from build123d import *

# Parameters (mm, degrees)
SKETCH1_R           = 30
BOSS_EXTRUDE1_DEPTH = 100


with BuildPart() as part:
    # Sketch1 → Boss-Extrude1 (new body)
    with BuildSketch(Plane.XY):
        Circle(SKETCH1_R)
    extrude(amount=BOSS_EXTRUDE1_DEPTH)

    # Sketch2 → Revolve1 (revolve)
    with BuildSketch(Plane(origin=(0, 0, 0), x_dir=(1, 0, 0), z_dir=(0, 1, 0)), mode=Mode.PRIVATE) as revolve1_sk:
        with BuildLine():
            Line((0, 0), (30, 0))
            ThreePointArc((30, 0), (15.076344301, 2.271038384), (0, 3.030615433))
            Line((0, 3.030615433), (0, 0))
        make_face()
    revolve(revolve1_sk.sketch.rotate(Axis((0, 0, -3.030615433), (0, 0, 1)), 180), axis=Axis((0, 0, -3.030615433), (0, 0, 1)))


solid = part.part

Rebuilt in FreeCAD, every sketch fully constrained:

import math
import FreeCAD as App
import Part
import Sketcher
Q = App.Units.Quantity

doc = App.newDocument("Part")
body = doc.addObject("PartDesign::Body", "Body")

# Sketch on XY plane
sketch1 = doc.addObject("Sketcher::SketchObject", "Sketch")
body.addObject(sketch1)
sketch1.AttachmentSupport = (doc.XY_Plane, [""])
sketch1.MapMode = "FlatFace"
sketch1.addGeometry(Part.Circle(App.Vector(0, 0, 0), App.Vector(0, 0, 1), 30), False)
sketch1.addConstraint([
    Sketcher.Constraint("Coincident", 0, 3, -1, 1),
    Sketcher.Constraint("Diameter", 0, Q("60 mm")),
])
pad1 = doc.addObject("PartDesign::Pad", "Pad")
body.addObject(pad1)
pad1.Profile = sketch1
pad1.Length = 100

# Sketch on XZ plane
sketch2 = doc.addObject("Sketcher::SketchObject", "Sketch001")
body.addObject(sketch2)
sketch2.AttachmentSupport = (doc.XZ_Plane, [""])
sketch2.MapMode = "FlatFace"
sketch2.addGeometry([
    Part.LineSegment(App.Vector(0, 0, 0), App.Vector(30, 0, 0)),
    Part.ArcOfCircle(Part.Circle(App.Vector(0, 147, 0), App.Vector(0, 0, 1), 150), math.radians(-90), math.radians(-78.46)),
    Part.LineSegment(App.Vector(0, -3, 0), App.Vector(0, 0, 0)),
], False)
sketch2.addConstraint([
    Sketcher.Constraint("Coincident", 0, 2, 1, 2),
    Sketcher.Constraint("Coincident", 1, 1, 2, 1),
    Sketcher.Constraint("Coincident", 2, 2, 0, 1),
    Sketcher.Constraint("Horizontal", 0),
    Sketcher.Constraint("Vertical", 2),
    Sketcher.Constraint("Coincident", 2, 2, -1, 1),
    Sketcher.Constraint("PointOnObject", 1, 3, -2),
    Sketcher.Constraint("Radius", 1, Q("150 mm")),
    Sketcher.Constraint("DistanceX", 0, 1, 0, 2, Q("30 mm")),
])
revolution = doc.addObject("PartDesign::Revolution", "Revolution")
body.addObject(revolution)
revolution.Profile = sketch2
revolution.ReferenceAxis = (sketch2, ["V_Axis"])
revolution.Angle = 360

doc.recompute()
